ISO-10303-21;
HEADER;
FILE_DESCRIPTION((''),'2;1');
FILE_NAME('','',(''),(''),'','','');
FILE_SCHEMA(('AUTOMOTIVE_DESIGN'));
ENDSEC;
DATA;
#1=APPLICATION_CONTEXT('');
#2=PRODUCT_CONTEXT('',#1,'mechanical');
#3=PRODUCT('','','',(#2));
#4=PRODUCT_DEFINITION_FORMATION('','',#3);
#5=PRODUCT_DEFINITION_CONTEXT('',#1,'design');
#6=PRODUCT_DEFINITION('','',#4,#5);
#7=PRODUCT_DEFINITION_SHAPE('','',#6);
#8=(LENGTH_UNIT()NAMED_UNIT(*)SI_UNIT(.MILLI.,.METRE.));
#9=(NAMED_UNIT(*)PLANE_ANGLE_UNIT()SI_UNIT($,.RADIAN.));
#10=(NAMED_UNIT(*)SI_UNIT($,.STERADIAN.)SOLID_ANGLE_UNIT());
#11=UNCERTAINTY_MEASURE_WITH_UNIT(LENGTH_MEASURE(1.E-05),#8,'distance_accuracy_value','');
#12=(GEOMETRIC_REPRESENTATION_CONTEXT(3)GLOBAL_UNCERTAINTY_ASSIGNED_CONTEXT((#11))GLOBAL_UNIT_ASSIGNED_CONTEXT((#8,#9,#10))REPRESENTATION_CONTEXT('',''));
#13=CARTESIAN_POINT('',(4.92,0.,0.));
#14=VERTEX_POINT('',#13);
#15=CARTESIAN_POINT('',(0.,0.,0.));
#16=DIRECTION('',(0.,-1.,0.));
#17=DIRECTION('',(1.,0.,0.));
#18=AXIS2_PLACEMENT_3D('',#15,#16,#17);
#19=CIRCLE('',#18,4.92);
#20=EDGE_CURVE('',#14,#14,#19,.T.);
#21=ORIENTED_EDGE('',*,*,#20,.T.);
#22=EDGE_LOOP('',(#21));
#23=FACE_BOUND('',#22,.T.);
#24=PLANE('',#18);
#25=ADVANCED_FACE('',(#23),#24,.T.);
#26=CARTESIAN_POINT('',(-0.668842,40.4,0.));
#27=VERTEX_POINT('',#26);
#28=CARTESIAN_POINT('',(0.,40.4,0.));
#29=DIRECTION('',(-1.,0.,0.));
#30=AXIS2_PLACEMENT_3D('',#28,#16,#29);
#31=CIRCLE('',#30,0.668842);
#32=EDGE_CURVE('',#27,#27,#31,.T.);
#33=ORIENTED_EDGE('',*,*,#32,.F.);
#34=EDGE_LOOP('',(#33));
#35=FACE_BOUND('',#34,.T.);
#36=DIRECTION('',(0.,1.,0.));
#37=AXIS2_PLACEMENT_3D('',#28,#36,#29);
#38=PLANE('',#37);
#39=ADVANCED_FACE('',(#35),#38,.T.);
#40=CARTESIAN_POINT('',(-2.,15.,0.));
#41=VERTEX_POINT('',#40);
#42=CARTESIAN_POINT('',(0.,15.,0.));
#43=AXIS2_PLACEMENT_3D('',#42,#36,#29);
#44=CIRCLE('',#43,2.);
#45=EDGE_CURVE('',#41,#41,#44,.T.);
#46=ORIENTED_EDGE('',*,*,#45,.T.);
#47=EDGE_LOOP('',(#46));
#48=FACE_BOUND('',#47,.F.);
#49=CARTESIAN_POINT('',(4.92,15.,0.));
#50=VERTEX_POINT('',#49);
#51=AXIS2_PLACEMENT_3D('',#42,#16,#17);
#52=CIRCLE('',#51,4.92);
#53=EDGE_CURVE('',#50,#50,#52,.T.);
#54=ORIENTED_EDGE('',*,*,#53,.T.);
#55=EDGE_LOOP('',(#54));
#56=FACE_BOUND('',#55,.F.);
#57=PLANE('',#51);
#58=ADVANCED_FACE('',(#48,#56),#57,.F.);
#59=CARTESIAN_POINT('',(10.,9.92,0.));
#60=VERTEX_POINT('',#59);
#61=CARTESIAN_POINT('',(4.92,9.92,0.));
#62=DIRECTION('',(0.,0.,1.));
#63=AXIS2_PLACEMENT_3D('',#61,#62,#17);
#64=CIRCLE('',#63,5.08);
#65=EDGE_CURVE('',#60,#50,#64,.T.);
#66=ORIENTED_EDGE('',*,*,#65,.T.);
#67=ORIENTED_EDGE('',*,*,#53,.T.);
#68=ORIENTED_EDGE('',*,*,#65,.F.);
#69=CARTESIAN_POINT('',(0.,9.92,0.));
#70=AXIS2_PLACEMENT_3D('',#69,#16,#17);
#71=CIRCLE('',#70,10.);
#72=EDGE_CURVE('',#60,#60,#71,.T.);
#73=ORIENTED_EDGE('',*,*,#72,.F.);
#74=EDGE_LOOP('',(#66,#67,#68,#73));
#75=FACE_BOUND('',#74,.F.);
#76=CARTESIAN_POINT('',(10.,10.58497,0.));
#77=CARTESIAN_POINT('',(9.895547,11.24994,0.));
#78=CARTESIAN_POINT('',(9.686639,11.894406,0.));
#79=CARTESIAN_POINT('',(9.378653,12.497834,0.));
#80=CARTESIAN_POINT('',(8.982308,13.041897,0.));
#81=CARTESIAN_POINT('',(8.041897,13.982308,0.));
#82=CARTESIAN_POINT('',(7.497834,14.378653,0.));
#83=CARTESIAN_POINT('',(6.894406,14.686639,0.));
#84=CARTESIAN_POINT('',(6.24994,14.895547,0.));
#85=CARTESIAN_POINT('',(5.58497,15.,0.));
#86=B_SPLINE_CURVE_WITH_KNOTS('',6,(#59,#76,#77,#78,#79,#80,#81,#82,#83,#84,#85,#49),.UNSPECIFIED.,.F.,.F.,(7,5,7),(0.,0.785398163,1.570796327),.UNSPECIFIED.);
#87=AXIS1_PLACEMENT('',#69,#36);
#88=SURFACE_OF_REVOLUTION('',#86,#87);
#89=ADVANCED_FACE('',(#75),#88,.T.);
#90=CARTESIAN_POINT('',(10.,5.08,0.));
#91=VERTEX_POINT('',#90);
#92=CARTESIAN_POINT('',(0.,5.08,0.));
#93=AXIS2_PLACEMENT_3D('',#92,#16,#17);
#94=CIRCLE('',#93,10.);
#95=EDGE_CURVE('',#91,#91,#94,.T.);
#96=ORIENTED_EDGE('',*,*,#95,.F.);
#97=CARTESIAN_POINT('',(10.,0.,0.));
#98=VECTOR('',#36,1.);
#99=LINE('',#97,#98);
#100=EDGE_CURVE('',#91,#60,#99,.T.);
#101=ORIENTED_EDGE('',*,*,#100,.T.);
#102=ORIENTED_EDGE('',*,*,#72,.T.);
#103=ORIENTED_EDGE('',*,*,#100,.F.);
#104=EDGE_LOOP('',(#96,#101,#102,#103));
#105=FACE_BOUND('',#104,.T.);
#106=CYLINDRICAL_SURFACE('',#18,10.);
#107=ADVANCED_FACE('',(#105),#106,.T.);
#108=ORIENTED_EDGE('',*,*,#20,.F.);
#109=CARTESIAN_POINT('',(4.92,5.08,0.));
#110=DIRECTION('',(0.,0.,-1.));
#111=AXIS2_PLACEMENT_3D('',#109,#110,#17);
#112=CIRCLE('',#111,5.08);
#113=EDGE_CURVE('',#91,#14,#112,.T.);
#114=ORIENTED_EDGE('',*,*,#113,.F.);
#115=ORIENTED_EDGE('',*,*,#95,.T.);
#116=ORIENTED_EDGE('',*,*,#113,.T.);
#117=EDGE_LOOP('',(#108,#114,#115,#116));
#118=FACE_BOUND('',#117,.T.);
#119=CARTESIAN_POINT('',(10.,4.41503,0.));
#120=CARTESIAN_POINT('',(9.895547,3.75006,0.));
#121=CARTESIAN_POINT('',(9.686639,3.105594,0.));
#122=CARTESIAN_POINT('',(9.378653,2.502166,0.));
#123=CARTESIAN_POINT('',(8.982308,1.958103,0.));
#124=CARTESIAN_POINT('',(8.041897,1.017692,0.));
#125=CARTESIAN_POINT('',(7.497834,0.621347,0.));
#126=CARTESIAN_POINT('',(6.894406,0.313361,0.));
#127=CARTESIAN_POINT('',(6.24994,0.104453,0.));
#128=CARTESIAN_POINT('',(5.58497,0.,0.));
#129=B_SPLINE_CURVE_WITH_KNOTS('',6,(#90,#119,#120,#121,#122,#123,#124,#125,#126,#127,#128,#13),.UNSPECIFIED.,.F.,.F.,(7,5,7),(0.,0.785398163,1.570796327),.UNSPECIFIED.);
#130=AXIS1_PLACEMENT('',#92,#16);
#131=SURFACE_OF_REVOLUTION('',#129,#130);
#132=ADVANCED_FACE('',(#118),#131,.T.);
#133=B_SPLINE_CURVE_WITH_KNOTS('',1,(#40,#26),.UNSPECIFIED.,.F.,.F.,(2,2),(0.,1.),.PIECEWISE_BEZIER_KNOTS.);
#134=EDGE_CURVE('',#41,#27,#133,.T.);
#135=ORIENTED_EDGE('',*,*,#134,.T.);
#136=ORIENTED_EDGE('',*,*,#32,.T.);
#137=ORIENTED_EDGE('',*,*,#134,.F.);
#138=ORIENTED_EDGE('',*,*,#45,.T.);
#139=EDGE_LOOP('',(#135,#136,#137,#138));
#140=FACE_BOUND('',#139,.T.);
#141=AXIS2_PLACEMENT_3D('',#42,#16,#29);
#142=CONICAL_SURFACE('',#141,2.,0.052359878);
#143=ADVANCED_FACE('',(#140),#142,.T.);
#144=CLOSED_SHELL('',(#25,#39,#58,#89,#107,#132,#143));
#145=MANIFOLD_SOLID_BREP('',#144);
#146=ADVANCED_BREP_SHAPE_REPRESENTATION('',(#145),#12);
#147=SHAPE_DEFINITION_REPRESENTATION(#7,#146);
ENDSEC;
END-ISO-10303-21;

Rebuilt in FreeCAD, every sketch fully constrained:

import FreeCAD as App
import Part
import Sketcher

V = App.Vector


def edges_at(feature, points):
    """Names of the edges that pass closest to the given points."""
    edges = feature.Shape.Edges
    near = lambda p: min(range(len(edges)), key=lambda i: edges[i].distToShape(Part.Vertex(*p))[0])
    return sorted({f"Edge{near(p) + 1}" for p in points})

doc = App.newDocument("Part")
body = doc.addObject("PartDesign::Body", "Body")

sketch1 = body.newObject("Sketcher::SketchObject", "Sketch")
sketch1.AttachmentSupport = (doc.getObject("XZ_Plane"), [""])
sketch1.MapMode = "FlatFace"
sketch1.addGeometry(Part.Circle(V(0, 0, 0), V(0, 0, 1), 10), False)
sketch1.addConstraint(Sketcher.Constraint("Coincident", 0, 3, -1, 1))
sketch1.addConstraint(Sketcher.Constraint("Diameter", 0, 20.0))
pad1 = body.newObject("PartDesign::Pad", "Pad")
pad1.Profile = sketch1
pad1.Length = 15
pad1.Reversed = True
doc.recompute()

fillet = body.newObject("PartDesign::Fillet", "Fillet")
fillet.Base = (pad1, edges_at(pad1, [(-10, 0, 0), (-10, 15, 0)]))
fillet.Radius = 5.08

sketch2 = body.newObject("Sketcher::SketchObject", "Sketch001")
sketch2.AttachmentSupport = (doc.getObject("XZ_Plane"), [""])
sketch2.MapMode = "FlatFace"
sketch2.AttachmentOffset = App.Placement(V(0, 0, -15), App.Rotation())
sketch2.addGeometry(Part.Circle(V(0, 0, 0), V(0, 0, 1), 2), False)
sketch2.addConstraint(Sketcher.Constraint("Coincident", 0, 3, -1, 1))
sketch2.addConstraint(Sketcher.Constraint("Diameter", 0, 4.0))
pad2 = body.newObject("PartDesign::Pad", "Pad001")
pad2.Profile = sketch2
pad2.Length = 25.4
pad2.Reversed = True
pad2.TaperAngle = -3

doc.recompute()
